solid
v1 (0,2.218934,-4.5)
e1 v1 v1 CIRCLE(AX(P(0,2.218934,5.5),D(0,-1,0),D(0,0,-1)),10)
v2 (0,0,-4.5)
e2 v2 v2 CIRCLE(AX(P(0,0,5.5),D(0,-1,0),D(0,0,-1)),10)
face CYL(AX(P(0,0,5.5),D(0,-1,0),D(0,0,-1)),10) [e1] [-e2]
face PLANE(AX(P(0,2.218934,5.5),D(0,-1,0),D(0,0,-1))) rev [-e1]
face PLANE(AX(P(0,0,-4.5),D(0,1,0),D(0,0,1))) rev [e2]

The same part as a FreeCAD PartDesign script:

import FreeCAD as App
import Part
import Sketcher
from FreeCAD import Vector


def add_polygon(sketch, points):
    """Adds a closed chain of lines whose ends are joined by coincident constraints."""
    first, n = sketch.GeometryCount, len(points)
    for a, b in zip(points, points[1:] + points[:1]):
        sketch.addGeometry(Part.LineSegment(App.Vector(*a, 0), App.Vector(*b, 0)), False)
    for i in range(n):
        sketch.addConstraint(Sketcher.Constraint("Coincident", first + i, 2, first + (i + 1) % n, 1))

doc = App.newDocument("Part")
body = doc.addObject("PartDesign::Body", "Body")

sketch1 = body.newObject("Sketcher::SketchObject", "Sketch")
sketch1.AttachmentSupport = (doc.getObject("YZ_Plane"), [""])
sketch1.MapMode = "FlatFace"
add_polygon(sketch1, [(2.218934, 15.5), (0, 15.5), (0, 5.5), (2.218934, 5.5)])
sketch1.addGeometry(Part.LineSegment(Vector(0, 5.5, 0), Vector(2.218934, 5.5, 0)), True)
sketch1.addConstraint(Sketcher.Constraint("Horizontal", 0))
sketch1.addConstraint(Sketcher.Constraint("Vertical", 1))
sketch1.addConstraint(Sketcher.Constraint("Horizontal", 2))
sketch1.addConstraint(Sketcher.Constraint("Vertical", 3))
sketch1.addConstraint(Sketcher.Constraint("Horizontal", 4))
sketch1.addConstraint(Sketcher.Constraint("Coincident", 4, 1, 1, 2))
sketch1.addConstraint(Sketcher.Constraint("PointOnObject", 0, 2, -2))
sketch1.addConstraint(Sketcher.Constraint("Vertical", 3, 2, 4, 2))
sketch1.addConstraint(Sketcher.Constraint("DistanceY", 1, 2, 1, 1, 10.0))
sketch1.addConstraint(Sketcher.Constraint("DistanceY", -1, 1, 0, 2, 15.5))
sketch1.addConstraint(Sketcher.Constraint("DistanceX", 0, 2, 0, 1, 2.218934))
revolution = body.newObject("PartDesign::Revolution", "Revolution")
revolution.Profile = sketch1
revolution.ReferenceAxis = (sketch1, ["Axis0"])
revolution.Angle = 360

doc.recompute()
